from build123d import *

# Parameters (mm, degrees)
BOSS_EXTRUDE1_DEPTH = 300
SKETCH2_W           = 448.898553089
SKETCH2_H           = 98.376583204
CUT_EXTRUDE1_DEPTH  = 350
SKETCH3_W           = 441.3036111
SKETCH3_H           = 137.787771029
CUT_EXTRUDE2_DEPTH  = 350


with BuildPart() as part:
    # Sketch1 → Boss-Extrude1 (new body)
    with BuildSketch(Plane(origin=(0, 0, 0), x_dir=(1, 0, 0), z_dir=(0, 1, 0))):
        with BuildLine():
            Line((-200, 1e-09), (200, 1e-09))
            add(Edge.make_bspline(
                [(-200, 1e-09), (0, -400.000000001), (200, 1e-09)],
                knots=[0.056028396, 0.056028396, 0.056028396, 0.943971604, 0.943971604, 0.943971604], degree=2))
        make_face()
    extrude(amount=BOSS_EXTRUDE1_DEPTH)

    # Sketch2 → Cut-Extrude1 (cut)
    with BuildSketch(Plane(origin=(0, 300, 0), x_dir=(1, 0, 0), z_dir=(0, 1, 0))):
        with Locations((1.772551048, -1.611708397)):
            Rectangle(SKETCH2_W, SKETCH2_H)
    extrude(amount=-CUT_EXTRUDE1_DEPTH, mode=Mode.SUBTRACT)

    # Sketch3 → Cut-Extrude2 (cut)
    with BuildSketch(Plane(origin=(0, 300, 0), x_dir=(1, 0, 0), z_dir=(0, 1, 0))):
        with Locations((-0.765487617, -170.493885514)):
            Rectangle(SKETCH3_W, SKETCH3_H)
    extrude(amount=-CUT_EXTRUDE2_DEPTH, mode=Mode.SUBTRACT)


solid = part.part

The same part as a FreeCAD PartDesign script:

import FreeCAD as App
import Part
import Sketcher
Q = App.Units.Quantity

doc = App.newDocument("Part")
body = doc.addObject("PartDesign::Body", "Body")

# Sketch on XZ plane
sketch1 = doc.addObject("Sketcher::SketchObject", "Sketch")
body.addObject(sketch1)
sketch1.AttachmentSupport = (doc.XZ_Plane, [""])
sketch1.MapMode = "FlatFace"
sketch1.addGeometry(Part.LineSegment(App.Vector(200, 0, 0), App.Vector(-200, 0, 0)), False)
sketch1.addGeometry(Part.BSplineCurve([App.Vector(-200, 0, 0), App.Vector(0, 400, 0), App.Vector(200, 0, 0)], [3, 3], [0.056028396, 0.943971604], False, 2, [1, 1, 1], False), False)
sketch1.addConstraint(Sketcher.Constraint("Block", 1))
sketch1.addConstraint(Sketcher.Constraint("Coincident", 0, 1, 1, 2))
sketch1.addConstraint(Sketcher.Constraint("Coincident", 1, 1, 0, 2))
pad1 = doc.addObject("PartDesign::Pad", "Pad")
body.addObject(pad1)
pad1.Profile = sketch1
pad1.Length = 300
pad1.Reversed = True

# Sketch on XZ plane
sketch2 = doc.addObject("Sketcher::SketchObject", "Sketch001")
body.addObject(sketch2)
sketch2.AttachmentSupport = (doc.XZ_Plane, [""])
sketch2.MapMode = "FlatFace"
sketch2.AttachmentOffset = App.Placement(App.Vector(0, 0, -300), App.Rotation())
sketch2.addGeometry(Part.LineSegment(App.Vector(-223, -48, 0), App.Vector(-223, 51, 0)), False)
sketch2.addGeometry(Part.LineSegment(App.Vector(-223, 51, 0), App.Vector(226, 51, 0)), False)
sketch2.addGeometry(Part.LineSegment(App.Vector(226, 51, 0), App.Vector(226, -48, 0)), False)
sketch2.addGeometry(Part.LineSegment(App.Vector(226, -48, 0), App.Vector(-223, -48, 0)), False)
sketch2.addConstraint(Sketcher.Constraint("Coincident", 0, 2, 1, 1))
sketch2.addConstraint(Sketcher.Constraint("Coincident", 1, 2, 2, 1))
sketch2.addConstraint(Sketcher.Constraint("Coincident", 2, 2, 3, 1))
sketch2.addConstraint(Sketcher.Constraint("Coincident", 3, 2, 0, 1))
sketch2.addConstraint(Sketcher.Constraint("Vertical", 0))
sketch2.addConstraint(Sketcher.Constraint("Horizontal", 1))
sketch2.addConstraint(Sketcher.Constraint("Vertical", 2))
sketch2.addConstraint(Sketcher.Constraint("Horizontal", 3))
sketch2.addConstraint(Sketcher.Constraint("DistanceY", -1, 1, 0, 2, Q("50.8 mm")))
sketch2.addConstraint(Sketcher.Constraint("DistanceX", 1, 1, 1, 2, Q("448.898553 mm")))
sketch2.addConstraint(Sketcher.Constraint("DistanceY", 0, 1, 0, 2, Q("98.376583 mm")))
sketch2.addConstraint(Sketcher.Constraint("DistanceX", 0, 2, -1, 1, Q("222.676725 mm")))
pocket1 = doc.addObject("PartDesign::Pocket", "Pocket")
body.addObject(pocket1)
pocket1.Profile = sketch2
pocket1.Length = 350
pocket1.Reversed = True

# Sketch on XZ plane
sketch3 = doc.addObject("Sketcher::SketchObject", "Sketch002")
body.addObject(sketch3)
sketch3.AttachmentSupport = (doc.XZ_Plane, [""])
sketch3.MapMode = "FlatFace"
sketch3.AttachmentOffset = App.Placement(App.Vector(0, 0, -300), App.Rotation())
sketch3.addGeometry(Part.LineSegment(App.Vector(-221, 102, 0), App.Vector(-221, 239, 0)), False)
sketch3.addGeometry(Part.LineSegment(App.Vector(-221, 239, 0), App.Vector(220, 239, 0)), False)
sketch3.addGeometry(Part.LineSegment(App.Vector(220, 239, 0), App.Vector(220, 102, 0)), False)
sketch3.addGeometry(Part.LineSegment(App.Vector(220, 102, 0), App.Vector(-221, 102, 0)), False)
sketch3.addConstraint(Sketcher.Constraint("Coincident", 0, 2, 1, 1))
sketch3.addConstraint(Sketcher.Constraint("Coincident", 1, 2, 2, 1))
sketch3.addConstraint(Sketcher.Constraint("Coincident", 2, 2, 3, 1))
sketch3.addConstraint(Sketcher.Constraint("Coincident", 3, 2, 0, 1))
sketch3.addConstraint(Sketcher.Constraint("Vertical", 0))
sketch3.addConstraint(Sketcher.Constraint("Horizontal", 1))
sketch3.addConstraint(Sketcher.Constraint("Vertical", 2))
sketch3.addConstraint(Sketcher.Constraint("Horizontal", 3))
sketch3.addConstraint(Sketcher.Constraint("DistanceY", -1, 1, 2, 2, Q("101.6 mm")))
sketch3.addConstraint(Sketcher.Constraint("DistanceX", 1, 1, 1, 2, Q("441.303611 mm")))
sketch3.addConstraint(Sketcher.Constraint("DistanceY", 0, 1, 0, 2, Q("137.787771 mm")))
sketch3.addConstraint(Sketcher.Constraint("DistanceX", 0, 2, -1, 1, Q("221.417293 mm")))
pocket2 = doc.addObject("PartDesign::Pocket", "Pocket001")
body.addObject(pocket2)
pocket2.Profile = sketch3
pocket2.Length = 350
pocket2.Reversed = True

doc.recompute()
